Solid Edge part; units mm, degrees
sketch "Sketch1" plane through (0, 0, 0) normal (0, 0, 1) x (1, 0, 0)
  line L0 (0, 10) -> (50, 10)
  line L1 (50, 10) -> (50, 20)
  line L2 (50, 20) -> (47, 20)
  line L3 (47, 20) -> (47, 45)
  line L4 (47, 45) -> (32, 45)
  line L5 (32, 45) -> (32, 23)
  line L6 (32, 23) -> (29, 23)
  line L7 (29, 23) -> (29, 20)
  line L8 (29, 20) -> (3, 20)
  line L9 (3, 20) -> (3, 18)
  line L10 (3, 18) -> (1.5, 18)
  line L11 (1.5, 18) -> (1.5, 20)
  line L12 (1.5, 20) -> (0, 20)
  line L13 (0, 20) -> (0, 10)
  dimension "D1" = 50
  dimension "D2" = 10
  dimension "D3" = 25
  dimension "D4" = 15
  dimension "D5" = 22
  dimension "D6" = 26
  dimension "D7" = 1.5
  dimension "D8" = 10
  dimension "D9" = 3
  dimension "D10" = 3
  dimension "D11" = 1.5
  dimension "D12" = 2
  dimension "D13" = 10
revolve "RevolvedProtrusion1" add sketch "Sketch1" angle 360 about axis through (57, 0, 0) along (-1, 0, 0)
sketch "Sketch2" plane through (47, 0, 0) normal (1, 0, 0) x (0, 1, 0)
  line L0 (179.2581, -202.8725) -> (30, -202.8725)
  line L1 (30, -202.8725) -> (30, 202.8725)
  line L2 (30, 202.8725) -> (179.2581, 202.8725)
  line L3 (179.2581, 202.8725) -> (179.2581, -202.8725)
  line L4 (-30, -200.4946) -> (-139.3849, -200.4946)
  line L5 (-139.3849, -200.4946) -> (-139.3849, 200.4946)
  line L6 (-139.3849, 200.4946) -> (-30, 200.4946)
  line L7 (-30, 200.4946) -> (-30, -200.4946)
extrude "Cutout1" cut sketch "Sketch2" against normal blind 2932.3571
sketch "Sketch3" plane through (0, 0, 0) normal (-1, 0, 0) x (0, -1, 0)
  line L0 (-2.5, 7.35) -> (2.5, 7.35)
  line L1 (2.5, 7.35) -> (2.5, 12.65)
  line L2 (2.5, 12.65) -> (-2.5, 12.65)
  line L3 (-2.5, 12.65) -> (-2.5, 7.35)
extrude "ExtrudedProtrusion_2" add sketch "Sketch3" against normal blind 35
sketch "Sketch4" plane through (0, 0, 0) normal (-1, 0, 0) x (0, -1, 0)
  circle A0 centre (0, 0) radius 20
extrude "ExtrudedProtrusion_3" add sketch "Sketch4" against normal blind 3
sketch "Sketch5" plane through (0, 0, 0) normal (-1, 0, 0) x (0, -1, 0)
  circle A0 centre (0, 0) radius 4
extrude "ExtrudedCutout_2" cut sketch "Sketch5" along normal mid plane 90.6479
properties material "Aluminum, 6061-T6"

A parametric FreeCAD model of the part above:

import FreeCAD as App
import Part
import Sketcher
Q = App.Units.Quantity

doc = App.newDocument("Part")
body = doc.addObject("PartDesign::Body", "Body")

# Sketch on XY plane
sketch1 = doc.addObject("Sketcher::SketchObject", "Sketch")
body.addObject(sketch1)
sketch1.AttachmentSupport = (doc.XY_Plane, [""])
sketch1.MapMode = "FlatFace"
sketch1.addGeometry(Part.LineSegment(App.Vector(0, 20, 0), App.Vector(0, 10, 0)), False)
sketch1.addGeometry(Part.LineSegment(App.Vector(0, 10, 0), App.Vector(50, 10, 0)), False)
sketch1.addGeometry(Part.LineSegment(App.Vector(50, 10, 0), App.Vector(50, 20, 0)), False)
sketch1.addGeometry(Part.LineSegment(App.Vector(50, 20, 0), App.Vector(47, 20, 0)), False)
sketch1.addGeometry(Part.LineSegment(App.Vector(47, 20, 0), App.Vector(47, 45, 0)), False)
sketch1.addGeometry(Part.LineSegment(App.Vector(47, 45, 0), App.Vector(32, 45, 0)), False)
sketch1.addGeometry(Part.LineSegment(App.Vector(32, 45, 0), App.Vector(32, 23, 0)), False)
sketch1.addGeometry(Part.LineSegment(App.Vector(32, 23, 0), App.Vector(29, 23, 0)), False)
sketch1.addGeometry(Part.LineSegment(App.Vector(29, 23, 0), App.Vector(29, 20, 0)), False)
sketch1.addGeometry(Part.LineSegment(App.Vector(29, 20, 0), App.Vector(3, 20, 0)), False)
sketch1.addGeometry(Part.LineSegment(App.Vector(3, 20, 0), App.Vector(3, 18, 0)), False)
sketch1.addGeometry(Part.LineSegment(App.Vector(3, 18, 0), App.Vector(1.5, 18, 0)), False)
sketch1.addGeometry(Part.LineSegment(App.Vector(1.5, 18, 0), App.Vector(1.5, 20, 0)), False)
sketch1.addGeometry(Part.LineSegment(App.Vector(1.5, 20, 0), App.Vector(0, 20, 0)), False)
sketch1.addConstraint(Sketcher.Constraint("Coincident", 0, 2, 1, 1))
sketch1.addConstraint(Sketcher.Constraint("Coincident", 1, 2, 2, 1))
sketch1.addConstraint(Sketcher.Constraint("Coincident", 2, 2, 3, 1))
sketch1.addConstraint(Sketcher.Constraint("Coincident", 3, 2, 4, 1))
sketch1.addConstraint(Sketcher.Constraint("Coincident", 4, 2, 5, 1))
sketch1.addConstraint(Sketcher.Constraint("Coincident", 5, 2, 6, 1))
sketch1.addConstraint(Sketcher.Constraint("Coincident", 6, 2, 7, 1))
sketch1.addConstraint(Sketcher.Constraint("Coincident", 7, 2, 8, 1))
sketch1.addConstraint(Sketcher.Constraint("Coincident", 8, 2, 9, 1))
sketch1.addConstraint(Sketcher.Constraint("Coincident", 9, 2, 10, 1))
sketch1.addConstraint(Sketcher.Constraint("Coincident", 10, 2, 11, 1))
sketch1.addConstraint(Sketcher.Constraint("Coincident", 11, 2, 12, 1))
sketch1.addConstraint(Sketcher.Constraint("Coincident", 12, 2, 13, 1))
sketch1.addConstraint(Sketcher.Constraint("Coincident", 13, 2, 0, 1))
sketch1.addConstraint(Sketcher.Constraint("Vertical", 0))
sketch1.addConstraint(Sketcher.Constraint("Horizontal", 1))
sketch1.addConstraint(Sketcher.Constraint("Vertical", 2))
sketch1.addConstraint(Sketcher.Constraint("Horizontal", 3))
sketch1.addConstraint(Sketcher.Constraint("Vertical", 4))
sketch1.addConstraint(Sketcher.Constraint("Horizontal", 5))
sketch1.addConstraint(Sketcher.Constraint("Vertical", 6))
sketch1.addConstraint(Sketcher.Constraint("Horizontal", 7))
sketch1.addConstraint(Sketcher.Constraint("Vertical", 8))
sketch1.addConstraint(Sketcher.Constraint("Horizontal", 9))
sketch1.addConstraint(Sketcher.Constraint("Vertical", 10))
sketch1.addConstraint(Sketcher.Constraint("Horizontal", 11))
sketch1.addConstraint(Sketcher.Constraint("Vertical", 12))
sketch1.addConstraint(Sketcher.Constraint("Horizontal", 13))
sketch1.addConstraint(Sketcher.Constraint("PointOnObject", 0, 2, -2))
sketch1.addConstraint(Sketcher.Constraint("Horizontal", 3, 2, 8, 2))
sketch1.addConstraint(Sketcher.Constraint("Horizontal", 9, 2, 12, 2))
sketch1.addConstraint(Sketcher.Constraint("Equal", 3, 7))
sketch1.addConstraint(Sketcher.Constraint("Equal", 11, 13))
sketch1.addConstraint(Sketcher.Constraint("Equal", 7, 8))
sketch1.addConstraint(Sketcher.Constraint("DistanceX", 1, 1, 1, 2, Q("50 mm")))
sketch1.addConstraint(Sketcher.Constraint("DistanceX", 3, 2, 3, 1, Q("3 mm")))
sketch1.addConstraint(Sketcher.Constraint("DistanceX", 11, 2, 11, 1, Q("1.5 mm")))
sketch1.addConstraint(Sketcher.Constraint("DistanceX", -1, 1, 5, 2, Q("32 mm")))
sketch1.addConstraint(Sketcher.Constraint("DistanceY", 0, 2, 0, 1, Q("10 mm")))
sketch1.addConstraint(Sketcher.Constraint("DistanceY", 4, 1, 4, 2, Q("25 mm")))
sketch1.addConstraint(Sketcher.Constraint("DistanceY", 10, 2, 10, 1, Q("2 mm")))
sketch1.addConstraint(Sketcher.Constraint("DistanceY", -1, 1, 0, 2, Q("10 mm")))
revolution = doc.addObject("PartDesign::Revolution", "Revolution")
body.addObject(revolution)
revolution.Profile = sketch1
revolution.ReferenceAxis = (sketch1, ["H_Axis"])
revolution.Angle = 360

# Sketch on YZ plane
sketch2 = doc.addObject("Sketcher::SketchObject", "Sketch001")
body.addObject(sketch2)
sketch2.AttachmentSupport = (doc.YZ_Plane, [""])
sketch2.MapMode = "FlatFace"
sketch2.AttachmentOffset = App.Placement(App.Vector(0, 0, 47), App.Rotation())
sketch2.addGeometry(Part.LineSegment(App.Vector(30, -202.8725, 0), App.Vector(179.2581, -202.8725, 0)), False)
sketch2.addGeometry(Part.LineSegment(App.Vector(179.2581, -202.8725, 0), App.Vector(179.2581, 202.8725, 0)), False)
sketch2.addGeometry(Part.LineSegment(App.Vector(179.2581, 202.8725, 0), App.Vector(30, 202.8725, 0)), False)
sketch2.addGeometry(Part.LineSegment(App.Vector(30, 202.8725, 0), App.Vector(30, -202.8725, 0)), False)
sketch2.addGeometry(Part.LineSegment(App.Vector(-139.3849, -200.4946, 0), App.Vector(-30, -200.4946, 0)), False)
sketch2.addGeometry(Part.LineSegment(App.Vector(-30, -200.4946, 0), App.Vector(-30, 200.4946, 0)), False)
sketch2.addGeometry(Part.LineSegment(App.Vector(-30, 200.4946, 0), App.Vector(-139.3849, 200.4946, 0)), False)
sketch2.addGeometry(Part.LineSegment(App.Vector(-139.3849, 200.4946, 0), App.Vector(-139.3849, -200.4946, 0)), False)
sketch2.addConstraint(Sketcher.Constraint("Coincident", 0, 2, 1, 1))
sketch2.addConstraint(Sketcher.Constraint("Coincident", 1, 2, 2, 1))
sketch2.addConstraint(Sketcher.Constraint("Coincident", 2, 2, 3, 1))
sketch2.addConstraint(Sketcher.Constraint("Coincident", 3, 2, 0, 1))
sketch2.addConstraint(Sketcher.Constraint("Coincident", 4, 2, 5, 1))
sketch2.addConstraint(Sketcher.Constraint("Coincident", 5, 2, 6, 1))
sketch2.addConstraint(Sketcher.Constraint("Coincident", 6, 2, 7, 1))
sketch2.addConstraint(Sketcher.Constraint("Coincident", 7, 2, 4, 1))
sketch2.addConstraint(Sketcher.Constraint("Horizontal", 0))
sketch2.addConstraint(Sketcher.Constraint("Vertical", 1))
sketch2.addConstraint(Sketcher.Constraint("Horizontal", 2))
sketch2.addConstraint(Sketcher.Constraint("Vertical", 3))
sketch2.addConstraint(Sketcher.Constraint("Horizontal", 4))
sketch2.addConstraint(Sketcher.Constraint("Vertical", 5))
sketch2.addConstraint(Sketcher.Constraint("Horizontal", 6))
sketch2.addConstraint(Sketcher.Constraint("Vertical", 7))
sketch2.addConstraint(Sketcher.Constraint("DistanceX", -1, 1, 2, 2, Q("30 mm")))
sketch2.addConstraint(Sketcher.Constraint("DistanceX", 4, 2, -1, 1, Q("30 mm")))
sketch2.addConstraint(Sketcher.Constraint("DistanceX", 0, 1, 0, 2, Q("149.258 mm")))
sketch2.addConstraint(Sketcher.Constraint("DistanceX", 4, 1, 4, 2, Q("109.385 mm")))
sketch2.addConstraint(Sketcher.Constraint("DistanceY", 1, 1, 1, 2, Q("405.745 mm")))
sketch2.addConstraint(Sketcher.Constraint("DistanceY", 5, 1, 5, 2, Q("400.9892 mm")))
sketch2.addConstraint(Sketcher.Constraint("DistanceY", 3, 2, 4, 2, Q("2.378 mm")))
sketch2.addConstraint(Sketcher.Constraint("DistanceY", 0, 2, -1, 1, Q("202.8725 mm")))
pocket1 = doc.addObject("PartDesign::Pocket", "Pocket")
body.addObject(pocket1)
pocket1.Profile = sketch2
pocket1.Length = 2932.3571

# Sketch on YZ plane
sketch3 = doc.addObject("Sketcher::SketchObject", "Sketch002")
body.addObject(sketch3)
sketch3.AttachmentSupport = (doc.YZ_Plane, [""])
sketch3.MapMode = "FlatFace"
sketch3.addGeometry(Part.LineSegment(App.Vector(2.5, 12.65, 0), App.Vector(2.5, 7.35, 0)), False)
sketch3.addGeometry(Part.LineSegment(App.Vector(2.5, 7.35, 0), App.Vector(-2.5, 7.35, 0)), False)
sketch3.addGeometry(Part.LineSegment(App.Vector(-2.5, 7.35, 0), App.Vector(-2.5, 12.65, 0)), False)
sketch3.addGeometry(Part.LineSegment(App.Vector(-2.5, 12.65, 0), App.Vector(2.5, 12.65, 0)), False)
sketch3.addConstraint(Sketcher.Constraint("Coincident", 0, 2, 1, 1))
sketch3.addConstraint(Sketcher.Constraint("Coincident", 1, 2, 2, 1))
sketch3.addConstraint(Sketcher.Constraint("Coincident", 2, 2, 3, 1))
sketch3.addConstraint(Sketcher.Constraint("Coincident", 3, 2, 0, 1))
sketch3.addConstraint(Sketcher.Constraint("Vertical", 0))
sketch3.addConstraint(Sketcher.Constraint("Horizontal", 1))
sketch3.addConstraint(Sketcher.Constraint("Vertical", 2))
sketch3.addConstraint(Sketcher.Constraint("Horizontal", 3))
sketch3.addConstraint(Sketcher.Constraint("DistanceX", 1, 2, 1, 1, Q("5 mm")))
sketch3.addConstraint(Sketcher.Constraint("DistanceY", 0, 2, 0, 1, Q("5.3 mm")))
sketch3.addConstraint(Sketcher.Constraint("DistanceX", -1, 1, 0, 2, Q("2.5 mm")))
sketch3.addConstraint(Sketcher.Constraint("DistanceY", -1, 1, 0, 2, Q("7.35 mm")))
pad1 = doc.addObject("PartDesign::Pad", "Pad")
body.addObject(pad1)
pad1.Profile = sketch3
pad1.Length = 35

# Sketch on YZ plane
sketch4 = doc.addObject("Sketcher::SketchObject", "Sketch003")
body.addObject(sketch4)
sketch4.AttachmentSupport = (doc.YZ_Plane, [""])
sketch4.MapMode = "FlatFace"
sketch4.addGeometry(Part.Circle(App.Vector(0, 0, 0), App.Vector(0, 0, 1), 20), False)
sketch4.addConstraint(Sketcher.Constraint("Coincident", 0, 3, -1, 1))
sketch4.addConstraint(Sketcher.Constraint("Diameter", 0, Q("40 mm")))
pad2 = doc.addObject("PartDesign::Pad", "Pad001")
body.addObject(pad2)
pad2.Profile = sketch4
pad2.Length = 3

# Sketch on YZ plane
sketch5 = doc.addObject("Sketcher::SketchObject", "Sketch004")
body.addObject(sketch5)
sketch5.AttachmentSupport = (doc.YZ_Plane, [""])
sketch5.MapMode = "FlatFace"
sketch5.addGeometry(Part.Circle(App.Vector(0, 0, 0), App.Vector(0, 0, 1), 4), False)
sketch5.addConstraint(Sketcher.Constraint("Coincident", 0, 3, -1, 1))
sketch5.addConstraint(Sketcher.Constraint("Diameter", 0, Q("8 mm")))
pocket2 = doc.addObject("PartDesign::Pocket", "Pocket001")
body.addObject(pocket2)
pocket2.Profile = sketch5
pocket2.Length = 90.6479
pocket2.Midplane = True

doc.recompute()
